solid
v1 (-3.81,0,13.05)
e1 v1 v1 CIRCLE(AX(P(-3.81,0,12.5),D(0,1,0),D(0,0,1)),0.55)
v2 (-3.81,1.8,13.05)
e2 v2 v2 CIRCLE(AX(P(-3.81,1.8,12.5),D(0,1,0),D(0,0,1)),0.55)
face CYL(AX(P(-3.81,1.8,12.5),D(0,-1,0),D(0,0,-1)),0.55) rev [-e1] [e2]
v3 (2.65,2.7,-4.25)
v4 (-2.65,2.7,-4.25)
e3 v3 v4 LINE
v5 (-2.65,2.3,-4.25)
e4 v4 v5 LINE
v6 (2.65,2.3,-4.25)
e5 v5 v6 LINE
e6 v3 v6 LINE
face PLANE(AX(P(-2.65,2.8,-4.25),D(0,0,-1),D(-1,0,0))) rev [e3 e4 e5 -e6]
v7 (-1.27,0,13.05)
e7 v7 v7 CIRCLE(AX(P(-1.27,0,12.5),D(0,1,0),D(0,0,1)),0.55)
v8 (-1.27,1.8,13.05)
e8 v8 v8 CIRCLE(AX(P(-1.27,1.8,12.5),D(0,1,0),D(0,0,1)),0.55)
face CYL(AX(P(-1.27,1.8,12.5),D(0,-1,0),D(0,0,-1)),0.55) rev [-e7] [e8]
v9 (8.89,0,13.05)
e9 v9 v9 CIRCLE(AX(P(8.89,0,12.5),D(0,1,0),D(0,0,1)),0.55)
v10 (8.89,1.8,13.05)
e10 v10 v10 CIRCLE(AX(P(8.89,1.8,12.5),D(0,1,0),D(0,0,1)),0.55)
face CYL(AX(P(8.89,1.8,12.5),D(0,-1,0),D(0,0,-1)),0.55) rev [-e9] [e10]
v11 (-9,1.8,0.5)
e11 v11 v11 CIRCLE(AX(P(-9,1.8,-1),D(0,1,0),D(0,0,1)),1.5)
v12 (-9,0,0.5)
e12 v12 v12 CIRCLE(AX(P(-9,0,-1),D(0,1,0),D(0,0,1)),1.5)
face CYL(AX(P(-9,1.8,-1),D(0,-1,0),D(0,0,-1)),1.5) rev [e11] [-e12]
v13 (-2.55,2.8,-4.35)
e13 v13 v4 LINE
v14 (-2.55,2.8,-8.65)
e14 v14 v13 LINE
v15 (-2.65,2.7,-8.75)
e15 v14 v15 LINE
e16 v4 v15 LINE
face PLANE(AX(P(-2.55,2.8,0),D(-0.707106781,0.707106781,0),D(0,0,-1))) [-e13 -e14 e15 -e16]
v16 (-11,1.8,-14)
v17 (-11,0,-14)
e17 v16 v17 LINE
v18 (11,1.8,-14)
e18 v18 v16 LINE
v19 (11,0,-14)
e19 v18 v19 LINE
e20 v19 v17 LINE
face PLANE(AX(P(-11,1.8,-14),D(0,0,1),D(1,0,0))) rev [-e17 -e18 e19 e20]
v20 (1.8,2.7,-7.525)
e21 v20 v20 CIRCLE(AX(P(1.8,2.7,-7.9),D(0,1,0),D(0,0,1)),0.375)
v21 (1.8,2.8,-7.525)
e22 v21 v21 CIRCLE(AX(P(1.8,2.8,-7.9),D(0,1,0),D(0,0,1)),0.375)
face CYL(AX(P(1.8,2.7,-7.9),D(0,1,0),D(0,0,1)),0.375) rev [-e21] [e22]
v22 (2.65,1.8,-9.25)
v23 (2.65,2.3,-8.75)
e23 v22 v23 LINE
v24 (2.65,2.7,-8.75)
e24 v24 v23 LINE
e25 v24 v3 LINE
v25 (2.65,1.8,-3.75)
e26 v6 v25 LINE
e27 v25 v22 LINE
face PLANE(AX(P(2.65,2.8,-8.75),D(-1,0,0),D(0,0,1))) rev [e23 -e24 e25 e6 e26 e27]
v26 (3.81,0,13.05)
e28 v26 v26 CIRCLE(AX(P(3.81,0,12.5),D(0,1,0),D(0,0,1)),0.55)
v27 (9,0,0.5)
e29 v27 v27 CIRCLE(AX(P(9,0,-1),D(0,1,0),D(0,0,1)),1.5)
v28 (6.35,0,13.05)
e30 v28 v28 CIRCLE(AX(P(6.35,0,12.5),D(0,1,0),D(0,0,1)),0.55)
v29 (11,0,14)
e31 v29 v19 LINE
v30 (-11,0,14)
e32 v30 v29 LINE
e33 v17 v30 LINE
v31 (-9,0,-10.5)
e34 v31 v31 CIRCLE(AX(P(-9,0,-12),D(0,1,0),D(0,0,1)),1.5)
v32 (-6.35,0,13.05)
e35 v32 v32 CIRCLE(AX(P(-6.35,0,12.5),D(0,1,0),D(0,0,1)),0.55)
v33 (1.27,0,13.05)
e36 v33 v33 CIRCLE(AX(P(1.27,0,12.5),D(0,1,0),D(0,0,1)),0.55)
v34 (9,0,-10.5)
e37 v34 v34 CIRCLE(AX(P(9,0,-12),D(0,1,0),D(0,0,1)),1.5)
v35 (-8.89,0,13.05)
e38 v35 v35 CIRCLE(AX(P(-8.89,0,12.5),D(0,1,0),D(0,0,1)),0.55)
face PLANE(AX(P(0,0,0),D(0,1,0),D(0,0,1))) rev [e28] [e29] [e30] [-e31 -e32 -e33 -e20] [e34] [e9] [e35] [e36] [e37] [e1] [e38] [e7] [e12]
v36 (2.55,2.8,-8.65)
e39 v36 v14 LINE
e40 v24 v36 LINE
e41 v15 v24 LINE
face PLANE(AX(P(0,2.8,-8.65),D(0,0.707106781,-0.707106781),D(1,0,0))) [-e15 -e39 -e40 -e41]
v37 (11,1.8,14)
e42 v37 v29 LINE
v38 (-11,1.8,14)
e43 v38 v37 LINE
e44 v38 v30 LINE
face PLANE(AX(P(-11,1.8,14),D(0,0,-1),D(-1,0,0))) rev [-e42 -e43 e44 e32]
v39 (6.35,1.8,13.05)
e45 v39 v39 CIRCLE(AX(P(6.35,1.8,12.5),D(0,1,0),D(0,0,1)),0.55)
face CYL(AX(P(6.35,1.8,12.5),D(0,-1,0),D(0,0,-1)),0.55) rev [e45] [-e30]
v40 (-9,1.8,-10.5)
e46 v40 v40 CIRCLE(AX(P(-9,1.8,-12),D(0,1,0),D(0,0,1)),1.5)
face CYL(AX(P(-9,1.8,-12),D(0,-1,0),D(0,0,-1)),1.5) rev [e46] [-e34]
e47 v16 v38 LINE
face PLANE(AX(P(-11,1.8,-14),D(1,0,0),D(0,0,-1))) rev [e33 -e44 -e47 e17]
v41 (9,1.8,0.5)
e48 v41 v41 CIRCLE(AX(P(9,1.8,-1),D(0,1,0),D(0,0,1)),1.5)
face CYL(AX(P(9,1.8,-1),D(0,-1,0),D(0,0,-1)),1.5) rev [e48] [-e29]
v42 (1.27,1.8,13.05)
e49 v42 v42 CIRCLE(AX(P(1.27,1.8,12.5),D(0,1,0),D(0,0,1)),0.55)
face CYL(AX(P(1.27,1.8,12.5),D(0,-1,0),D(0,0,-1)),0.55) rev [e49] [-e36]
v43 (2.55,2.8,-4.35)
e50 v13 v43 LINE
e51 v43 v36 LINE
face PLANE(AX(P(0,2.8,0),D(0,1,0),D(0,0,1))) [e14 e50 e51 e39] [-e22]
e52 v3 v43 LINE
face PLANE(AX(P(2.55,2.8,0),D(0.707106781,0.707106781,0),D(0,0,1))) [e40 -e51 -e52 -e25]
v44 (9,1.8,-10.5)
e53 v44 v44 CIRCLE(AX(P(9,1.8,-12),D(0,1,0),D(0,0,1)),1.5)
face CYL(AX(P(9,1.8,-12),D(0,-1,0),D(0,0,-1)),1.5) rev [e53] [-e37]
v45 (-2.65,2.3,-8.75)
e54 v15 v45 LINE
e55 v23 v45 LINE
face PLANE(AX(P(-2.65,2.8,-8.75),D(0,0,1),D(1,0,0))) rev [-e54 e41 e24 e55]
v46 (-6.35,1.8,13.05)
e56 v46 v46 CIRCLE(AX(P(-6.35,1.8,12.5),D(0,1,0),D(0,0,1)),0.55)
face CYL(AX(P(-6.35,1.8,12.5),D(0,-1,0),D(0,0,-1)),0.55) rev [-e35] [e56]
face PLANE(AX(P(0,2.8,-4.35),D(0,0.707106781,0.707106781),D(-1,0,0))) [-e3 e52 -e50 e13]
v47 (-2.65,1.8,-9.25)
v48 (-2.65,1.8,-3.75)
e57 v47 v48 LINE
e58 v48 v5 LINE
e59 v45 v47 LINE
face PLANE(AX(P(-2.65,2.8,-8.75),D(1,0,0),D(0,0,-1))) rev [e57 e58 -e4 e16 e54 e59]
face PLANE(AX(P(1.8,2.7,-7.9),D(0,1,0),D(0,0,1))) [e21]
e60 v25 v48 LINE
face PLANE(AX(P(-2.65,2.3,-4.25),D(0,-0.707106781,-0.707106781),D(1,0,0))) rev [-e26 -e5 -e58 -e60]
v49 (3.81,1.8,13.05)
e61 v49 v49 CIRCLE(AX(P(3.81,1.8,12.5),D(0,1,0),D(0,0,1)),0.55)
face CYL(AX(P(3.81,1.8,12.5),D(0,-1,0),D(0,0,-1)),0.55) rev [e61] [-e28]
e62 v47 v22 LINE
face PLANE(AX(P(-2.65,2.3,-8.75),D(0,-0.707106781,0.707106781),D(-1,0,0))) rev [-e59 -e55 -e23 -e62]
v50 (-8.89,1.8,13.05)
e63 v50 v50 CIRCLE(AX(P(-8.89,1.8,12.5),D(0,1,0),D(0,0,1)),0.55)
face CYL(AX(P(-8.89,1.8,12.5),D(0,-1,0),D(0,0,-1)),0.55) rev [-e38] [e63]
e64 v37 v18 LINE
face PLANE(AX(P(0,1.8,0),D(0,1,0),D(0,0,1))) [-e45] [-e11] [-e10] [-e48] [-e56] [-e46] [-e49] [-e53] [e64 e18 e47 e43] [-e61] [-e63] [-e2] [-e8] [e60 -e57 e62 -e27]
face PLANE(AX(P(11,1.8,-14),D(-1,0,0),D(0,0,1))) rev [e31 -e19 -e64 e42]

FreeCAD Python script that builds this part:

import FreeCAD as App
import Part
import Sketcher
from FreeCAD import Vector
Q = App.Units.Quantity


def edges_at(feature, points):
    """Names of the edges that pass closest to the given points."""
    edges = feature.Shape.Edges
    near = lambda p: min(range(len(edges)), key=lambda i: edges[i].distToShape(Part.Vertex(*p))[0])
    return sorted({f"Edge{near(p) + 1}" for p in points})


def add_polygon(sketch, points):
    """Adds a closed chain of lines whose ends are joined by coincident constraints."""
    first, n = sketch.GeometryCount, len(points)
    for a, b in zip(points, points[1:] + points[:1]):
        sketch.addGeometry(Part.LineSegment(App.Vector(*a, 0), App.Vector(*b, 0)), False)
    for i in range(n):
        sketch.addConstraint(Sketcher.Constraint("Coincident", first + i, 2, first + (i + 1) % n, 1))

doc = App.newDocument("Part")
body = doc.addObject("PartDesign::Body", "Body")

sketch1 = doc.addObject("Sketcher::SketchObject", "Sketch")
body.addObject(sketch1)
sketch1.AttachmentSupport = (doc.XZ_Plane, [""])
sketch1.MapMode = "FlatFace"
add_polygon(sketch1, [(-11, -14), (-11, 14), (11, 14), (11, -14)])
sketch1.addGeometry(Part.Circle(Vector(-8.9, 12.5, 0), Vector(0, 0, 1), 0.6), False)
sketch1.addGeometry(Part.Circle(Vector(-6.3, 12.5, 0), Vector(0, 0, 1), 0.6), False)
sketch1.addGeometry(Part.Circle(Vector(-3.8, 12.5, 0), Vector(0, 0, 1), 0.6), False)
sketch1.addGeometry(Part.Circle(Vector(-1.3, 12.5, 0), Vector(0, 0, 1), 0.6), False)
sketch1.addGeometry(Part.Circle(Vector(1.3, 12.5, 0), Vector(0, 0, 1), 0.6), False)
sketch1.addGeometry(Part.Circle(Vector(3.8, 12.5, 0), Vector(0, 0, 1), 0.6), False)
sketch1.addGeometry(Part.Circle(Vector(6.3, 12.5, 0), Vector(0, 0, 1), 0.6), False)
sketch1.addGeometry(Part.Circle(Vector(8.9, 12.5, 0), Vector(0, 0, 1), 0.6), False)
sketch1.addGeometry(Part.Circle(Vector(-9, -1, 0), Vector(0, 0, 1), 1.5), False)
sketch1.addGeometry(Part.Circle(Vector(-9, -12, 0), Vector(0, 0, 1), 1.5), False)
sketch1.addGeometry(Part.Circle(Vector(9, -1, 0), Vector(0, 0, 1), 1.5), False)
sketch1.addGeometry(Part.Circle(Vector(9, -12, 0), Vector(0, 0, 1), 1.5), False)
sketch1.addConstraint(Sketcher.Constraint("Vertical", 0))
sketch1.addConstraint(Sketcher.Constraint("Horizontal", 1))
sketch1.addConstraint(Sketcher.Constraint("Vertical", 2))
sketch1.addConstraint(Sketcher.Constraint("Horizontal", 3))
sketch1.addConstraint(Sketcher.Constraint("Equal", 4, 5))
sketch1.addConstraint(Sketcher.Constraint("Equal", 5, 6))
sketch1.addConstraint(Sketcher.Constraint("Equal", 6, 7))
sketch1.addConstraint(Sketcher.Constraint("Equal", 7, 8))
sketch1.addConstraint(Sketcher.Constraint("Equal", 8, 9))
sketch1.addConstraint(Sketcher.Constraint("Equal", 9, 10))
sketch1.addConstraint(Sketcher.Constraint("Equal", 10, 11))
sketch1.addConstraint(Sketcher.Constraint("Equal", 12, 13))
sketch1.addConstraint(Sketcher.Constraint("Equal", 13, 14))
sketch1.addConstraint(Sketcher.Constraint("Equal", 14, 15))
sketch1.addConstraint(Sketcher.Constraint("Symmetric", 0, 2, 2, 2, -1, 1))
sketch1.addConstraint(Sketcher.Constraint("Symmetric", 7, 3, 8, 3, -2))
sketch1.addConstraint(Sketcher.Constraint("Symmetric", 6, 3, 9, 3, -2))
sketch1.addConstraint(Sketcher.Constraint("Symmetric", 5, 3, 10, 3, -2))
sketch1.addConstraint(Sketcher.Constraint("Symmetric", 4, 3, 11, 3, -2))
sketch1.addConstraint(Sketcher.Constraint("Symmetric", 12, 3, 14, 3, -2))
sketch1.addConstraint(Sketcher.Constraint("Symmetric", 13, 3, 15, 3, -2))
sketch1.addConstraint(Sketcher.Constraint("Horizontal", 4, 3, 5, 3))
sketch1.addConstraint(Sketcher.Constraint("Horizontal", 5, 3, 6, 3))
sketch1.addConstraint(Sketcher.Constraint("Horizontal", 6, 3, 7, 3))
sketch1.addConstraint(Sketcher.Constraint("Vertical", 12, 3, 13, 3))
sketch1.addConstraint(Sketcher.Constraint("Diameter", 12, Q("3 mm")))
sketch1.addConstraint(Sketcher.Constraint("Diameter", 4, Q("1.1 mm")))
sketch1.addConstraint(Sketcher.Constraint("DistanceX", 1, 1, 1, 2, Q("22 mm")))
sketch1.addConstraint(Sketcher.Constraint("DistanceY", 0, 1, 0, 2, Q("28 mm")))
sketch1.addConstraint(Sketcher.Constraint("DistanceX", 12, 3, -1, 1, Q("9 mm")))
sketch1.addConstraint(Sketcher.Constraint("DistanceY", 12, 3, -1, 1, Q("1 mm")))
sketch1.addConstraint(Sketcher.Constraint("DistanceY", 13, 3, -1, 1, Q("12 mm")))
sketch1.addConstraint(Sketcher.Constraint("DistanceY", -1, 1, 4, 3, Q("12.5 mm")))
sketch1.addConstraint(Sketcher.Constraint("DistanceX", 4, 3, 9, 3, Q("12.7 mm")))
sketch1.addConstraint(Sketcher.Constraint("DistanceX", 5, 3, 10, 3, Q("12.7 mm")))
sketch1.addConstraint(Sketcher.Constraint("DistanceX", 4, 3, -1, 1, Q("8.89 mm")))
sketch1.addConstraint(Sketcher.Constraint("DistanceX", 7, 3, -1, 1, Q("1.27 mm")))
pad1 = doc.addObject("PartDesign::Pad", "Pad")
body.addObject(pad1)
pad1.Profile = sketch1
pad1.Length = 1.8
pad1.Reversed = True

sketch2 = doc.addObject("Sketcher::SketchObject", "Sketch001")
body.addObject(sketch2)
sketch2.AttachmentSupport = (doc.XZ_Plane, [""])
sketch2.MapMode = "FlatFace"
sketch2.AttachmentOffset = App.Placement(Vector(0, 0, -1.8), App.Rotation())
add_polygon(sketch2, [(-2.6, -8.8), (-2.6, -4.2), (2.6, -4.2), (2.6, -8.8)])
sketch2.addConstraint(Sketcher.Constraint("Vertical", 0))
sketch2.addConstraint(Sketcher.Constraint("Horizontal", 1))
sketch2.addConstraint(Sketcher.Constraint("Vertical", 2))
sketch2.addConstraint(Sketcher.Constraint("Horizontal", 3))
sketch2.addConstraint(Sketcher.Constraint("DistanceX", 1, 1, 1, 2, Q("5.3 mm")))
sketch2.addConstraint(Sketcher.Constraint("DistanceY", 0, 1, 0, 2, Q("4.5 mm")))
sketch2.addConstraint(Sketcher.Constraint("DistanceX", 0, 2, -1, 1, Q("2.65 mm")))
sketch2.addConstraint(Sketcher.Constraint("DistanceY", 0, 2, -1, 1, Q("4.25 mm")))
pad2 = doc.addObject("PartDesign::Pad", "Pad001")
body.addObject(pad2)
pad2.Profile = sketch2
pad2.Length = 1
pad2.Reversed = True
doc.recompute()

chamfer = doc.addObject("PartDesign::Chamfer", "Chamfer")
body.addObject(chamfer)
chamfer.Base = (pad2, edges_at(pad2, [(0, 1.8, -8.75), (0, 1.8, -4.25)]))
chamfer.Size = 0.5
doc.recompute()

chamfer2 = doc.addObject("PartDesign::Chamfer", "Chamfer001")
body.addObject(chamfer2)
chamfer2.Base = (chamfer, edges_at(chamfer, [
    (2.65, 2.8, -6.5),
    (0, 2.8, -8.75),
    (-2.65, 2.8, -6.5),
    (0, 2.8, -4.25),
]))
chamfer2.Size = 0.1

sketch3 = doc.addObject("Sketcher::SketchObject", "Sketch002")
body.addObject(sketch3)
sketch3.AttachmentSupport = (doc.XZ_Plane, [""])
sketch3.MapMode = "FlatFace"
sketch3.AttachmentOffset = App.Placement(Vector(0, 0, -2.8), App.Rotation())
sketch3.addGeometry(Part.Circle(Vector(1.8, -7.9, 0), Vector(0, 0, 1), 0.38), False)
sketch3.addConstraint(Sketcher.Constraint("Diameter", 0, Q("0.75 mm")))
sketch3.addConstraint(Sketcher.Constraint("DistanceX", -1, 1, 0, 3, Q("1.8 mm")))
sketch3.addConstraint(Sketcher.Constraint("DistanceY", 0, 3, -1, 1, Q("7.9 mm")))
pocket1 = doc.addObject("PartDesign::Pocket", "Pocket")
body.addObject(pocket1)
pocket1.Profile = sketch3
pocket1.Length = 0.1
pocket1.Reversed = True

doc.recompute()
